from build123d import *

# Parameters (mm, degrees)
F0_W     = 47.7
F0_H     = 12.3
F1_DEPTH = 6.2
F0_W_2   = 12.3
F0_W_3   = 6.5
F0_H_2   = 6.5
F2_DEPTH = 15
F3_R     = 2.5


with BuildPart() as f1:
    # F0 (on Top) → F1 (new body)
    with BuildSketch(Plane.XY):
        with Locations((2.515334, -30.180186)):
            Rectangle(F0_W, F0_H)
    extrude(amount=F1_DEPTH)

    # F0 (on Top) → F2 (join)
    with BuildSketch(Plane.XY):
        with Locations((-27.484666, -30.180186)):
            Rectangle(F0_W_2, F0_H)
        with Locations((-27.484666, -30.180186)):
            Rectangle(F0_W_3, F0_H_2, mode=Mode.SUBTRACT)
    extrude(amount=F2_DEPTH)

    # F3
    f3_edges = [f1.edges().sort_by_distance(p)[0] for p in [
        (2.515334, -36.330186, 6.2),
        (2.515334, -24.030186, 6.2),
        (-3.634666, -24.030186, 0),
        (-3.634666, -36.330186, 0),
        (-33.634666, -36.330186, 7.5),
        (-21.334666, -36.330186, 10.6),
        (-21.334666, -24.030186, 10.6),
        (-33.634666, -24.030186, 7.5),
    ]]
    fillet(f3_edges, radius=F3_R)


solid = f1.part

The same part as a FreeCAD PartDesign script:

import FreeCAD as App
import Part
import Sketcher

V = App.Vector
Q = App.Units.Quantity


def edges_at(feature, points):
    """Names of the edges that pass closest to the given points."""
    edges = feature.Shape.Edges
    near = lambda p: min(range(len(edges)), key=lambda i: edges[i].distToShape(Part.Vertex(*p))[0])
    return sorted({f"Edge{near(p) + 1}" for p in points})

doc = App.newDocument("Part")
params = doc.addObject("Spreadsheet::Sheet", "Params")
for row, (alias, value) in enumerate([
    ("sketch1_width", "47.7 mm"),
    ("sketch1_height", "12.3 mm"),
    ("pad1_length", "6.2 mm"),
    ("sketch2_width", "12.3 mm"),
    ("sketch2_width2", "6.5 mm"),
    ("pad2_length", "15 mm"),
    ("fillet_radius", "2.5 mm"),
], start=1):
    params.set(f"A{row}", alias)
    params.set(f"B{row}", "=" + value)
    params.setAlias(f"B{row}", alias)

body = doc.addObject("PartDesign::Body", "Body")

# Sketch on XY plane
sketch1 = body.newObject("Sketcher::SketchObject", "Sketch")
sketch1.AttachmentSupport = (doc.getObject("XY_Plane"), [""])
sketch1.MapMode = "FlatFace"
sketch1.addGeometry([
    Part.LineSegment(V(-21, -24, 0), V(-21, -36, 0)),
    Part.LineSegment(V(-21, -36, 0), V(26, -36, 0)),
    Part.LineSegment(V(26, -36, 0), V(26, -24, 0)),
    Part.LineSegment(V(26, -24, 0), V(-21, -24, 0)),
], False)
sketch1.addConstraint([
    Sketcher.Constraint("Coincident", 0, 2, 1, 1),
    Sketcher.Constraint("Coincident", 1, 2, 2, 1),
    Sketcher.Constraint("Coincident", 2, 2, 3, 1),
    Sketcher.Constraint("Coincident", 3, 2, 0, 1),
    Sketcher.Constraint("Vertical", 0),
    Sketcher.Constraint("Horizontal", 1),
    Sketcher.Constraint("Vertical", 2),
    Sketcher.Constraint("Horizontal", 3),
    Sketcher.Constraint("DistanceX", 1, 1, 1, 2, Q("47.7 mm")),
    Sketcher.Constraint("DistanceY", 0, 2, 0, 1, Q("12.3 mm")),
    Sketcher.Constraint("DistanceX", 0, 2, -1, 1, Q("21.334666 mm")),
    Sketcher.Constraint("DistanceY", 0, 2, -1, 1, Q("36.330186 mm")),
])
sketch1.setExpression("Constraints[8]", "Params.sketch1_width")
sketch1.setExpression("Constraints[9]", "Params.sketch1_height")
pad1 = body.newObject("PartDesign::Pad", "Pad")
pad1.Profile = sketch1
pad1.setExpression("Length", "Params.pad1_length")

# Sketch on XY plane
sketch2 = body.newObject("Sketcher::SketchObject", "Sketch001")
sketch2.AttachmentSupport = (doc.getObject("XY_Plane"), [""])
sketch2.MapMode = "FlatFace"
sketch2.addGeometry([
    Part.LineSegment(V(-34, -24, 0), V(-34, -36, 0)),  # 0
    Part.LineSegment(V(-34, -36, 0), V(-21, -36, 0)),  # 1
    Part.LineSegment(V(-21, -36, 0), V(-21, -24, 0)),  # 2
    Part.LineSegment(V(-21, -24, 0), V(-34, -24, 0)),  # 3
    Part.LineSegment(V(-24, -33, 0), V(-31, -33, 0)),  # 4
    Part.LineSegment(V(-31, -33, 0), V(-31, -27, 0)),  # 5
    Part.LineSegment(V(-31, -27, 0), V(-24, -27, 0)),  # 6
    Part.LineSegment(V(-24, -27, 0), V(-24, -33, 0)),  # 7
], False)
sketch2.addConstraint([
    Sketcher.Constraint("Coincident", 0, 2, 1, 1),
    Sketcher.Constraint("Coincident", 1, 2, 2, 1),
    Sketcher.Constraint("Coincident", 2, 2, 3, 1),
    Sketcher.Constraint("Coincident", 3, 2, 0, 1),
    Sketcher.Constraint("Coincident", 4, 2, 5, 1),
    Sketcher.Constraint("Coincident", 5, 2, 6, 1),
    Sketcher.Constraint("Coincident", 6, 2, 7, 1),
    Sketcher.Constraint("Coincident", 7, 2, 4, 1),
    Sketcher.Constraint("Vertical", 0),
    Sketcher.Constraint("Horizontal", 1),
    Sketcher.Constraint("Vertical", 2),
    Sketcher.Constraint("Horizontal", 3),
    Sketcher.Constraint("Horizontal", 4),
    Sketcher.Constraint("Vertical", 5),
    Sketcher.Constraint("Horizontal", 6),
    Sketcher.Constraint("Vertical", 7),
    Sketcher.Constraint("Equal", 3, 0),
    Sketcher.Constraint("Equal", 6, 5),
    Sketcher.Constraint("DistanceX", 1, 1, 1, 2, Q("12.3 mm")),
    Sketcher.Constraint("DistanceX", 4, 2, 4, 1, Q("6.5 mm")),
    Sketcher.Constraint("DistanceX", 0, 2, 4, 2, Q("2.9 mm")),
    Sketcher.Constraint("DistanceY", 0, 2, 4, 2, Q("2.9 mm")),
    Sketcher.Constraint("DistanceX", 0, 2, -1, 1, Q("33.634666 mm")),
    Sketcher.Constraint("DistanceY", 0, 2, -1, 1, Q("36.330186 mm")),
])
sketch2.setExpression("Constraints[18]", "Params.sketch2_width")
sketch2.setExpression("Constraints[19]", "Params.sketch2_width2")
pad2 = body.newObject("PartDesign::Pad", "Pad001")
pad2.Profile = sketch2
pad2.setExpression("Length", "Params.pad2_length")
doc.recompute()

fillet = body.newObject("PartDesign::Fillet", "Fillet")
fillet.Base = (pad2, edges_at(pad2, [
    (2.515, -36.33, 6.2),
    (2.515, -24.03, 6.2),
    (-3.635, -24.03, 0),
    (-3.635, -36.33, 0),
    (-33.635, -36.33, 7.5),
    (-21.335, -36.33, 10.6),
    (-21.335, -24.03, 10.6),
    (-33.635, -24.03, 7.5),
]))
fillet.setExpression("Radius", "Params.fillet_radius")

doc.recompute()
